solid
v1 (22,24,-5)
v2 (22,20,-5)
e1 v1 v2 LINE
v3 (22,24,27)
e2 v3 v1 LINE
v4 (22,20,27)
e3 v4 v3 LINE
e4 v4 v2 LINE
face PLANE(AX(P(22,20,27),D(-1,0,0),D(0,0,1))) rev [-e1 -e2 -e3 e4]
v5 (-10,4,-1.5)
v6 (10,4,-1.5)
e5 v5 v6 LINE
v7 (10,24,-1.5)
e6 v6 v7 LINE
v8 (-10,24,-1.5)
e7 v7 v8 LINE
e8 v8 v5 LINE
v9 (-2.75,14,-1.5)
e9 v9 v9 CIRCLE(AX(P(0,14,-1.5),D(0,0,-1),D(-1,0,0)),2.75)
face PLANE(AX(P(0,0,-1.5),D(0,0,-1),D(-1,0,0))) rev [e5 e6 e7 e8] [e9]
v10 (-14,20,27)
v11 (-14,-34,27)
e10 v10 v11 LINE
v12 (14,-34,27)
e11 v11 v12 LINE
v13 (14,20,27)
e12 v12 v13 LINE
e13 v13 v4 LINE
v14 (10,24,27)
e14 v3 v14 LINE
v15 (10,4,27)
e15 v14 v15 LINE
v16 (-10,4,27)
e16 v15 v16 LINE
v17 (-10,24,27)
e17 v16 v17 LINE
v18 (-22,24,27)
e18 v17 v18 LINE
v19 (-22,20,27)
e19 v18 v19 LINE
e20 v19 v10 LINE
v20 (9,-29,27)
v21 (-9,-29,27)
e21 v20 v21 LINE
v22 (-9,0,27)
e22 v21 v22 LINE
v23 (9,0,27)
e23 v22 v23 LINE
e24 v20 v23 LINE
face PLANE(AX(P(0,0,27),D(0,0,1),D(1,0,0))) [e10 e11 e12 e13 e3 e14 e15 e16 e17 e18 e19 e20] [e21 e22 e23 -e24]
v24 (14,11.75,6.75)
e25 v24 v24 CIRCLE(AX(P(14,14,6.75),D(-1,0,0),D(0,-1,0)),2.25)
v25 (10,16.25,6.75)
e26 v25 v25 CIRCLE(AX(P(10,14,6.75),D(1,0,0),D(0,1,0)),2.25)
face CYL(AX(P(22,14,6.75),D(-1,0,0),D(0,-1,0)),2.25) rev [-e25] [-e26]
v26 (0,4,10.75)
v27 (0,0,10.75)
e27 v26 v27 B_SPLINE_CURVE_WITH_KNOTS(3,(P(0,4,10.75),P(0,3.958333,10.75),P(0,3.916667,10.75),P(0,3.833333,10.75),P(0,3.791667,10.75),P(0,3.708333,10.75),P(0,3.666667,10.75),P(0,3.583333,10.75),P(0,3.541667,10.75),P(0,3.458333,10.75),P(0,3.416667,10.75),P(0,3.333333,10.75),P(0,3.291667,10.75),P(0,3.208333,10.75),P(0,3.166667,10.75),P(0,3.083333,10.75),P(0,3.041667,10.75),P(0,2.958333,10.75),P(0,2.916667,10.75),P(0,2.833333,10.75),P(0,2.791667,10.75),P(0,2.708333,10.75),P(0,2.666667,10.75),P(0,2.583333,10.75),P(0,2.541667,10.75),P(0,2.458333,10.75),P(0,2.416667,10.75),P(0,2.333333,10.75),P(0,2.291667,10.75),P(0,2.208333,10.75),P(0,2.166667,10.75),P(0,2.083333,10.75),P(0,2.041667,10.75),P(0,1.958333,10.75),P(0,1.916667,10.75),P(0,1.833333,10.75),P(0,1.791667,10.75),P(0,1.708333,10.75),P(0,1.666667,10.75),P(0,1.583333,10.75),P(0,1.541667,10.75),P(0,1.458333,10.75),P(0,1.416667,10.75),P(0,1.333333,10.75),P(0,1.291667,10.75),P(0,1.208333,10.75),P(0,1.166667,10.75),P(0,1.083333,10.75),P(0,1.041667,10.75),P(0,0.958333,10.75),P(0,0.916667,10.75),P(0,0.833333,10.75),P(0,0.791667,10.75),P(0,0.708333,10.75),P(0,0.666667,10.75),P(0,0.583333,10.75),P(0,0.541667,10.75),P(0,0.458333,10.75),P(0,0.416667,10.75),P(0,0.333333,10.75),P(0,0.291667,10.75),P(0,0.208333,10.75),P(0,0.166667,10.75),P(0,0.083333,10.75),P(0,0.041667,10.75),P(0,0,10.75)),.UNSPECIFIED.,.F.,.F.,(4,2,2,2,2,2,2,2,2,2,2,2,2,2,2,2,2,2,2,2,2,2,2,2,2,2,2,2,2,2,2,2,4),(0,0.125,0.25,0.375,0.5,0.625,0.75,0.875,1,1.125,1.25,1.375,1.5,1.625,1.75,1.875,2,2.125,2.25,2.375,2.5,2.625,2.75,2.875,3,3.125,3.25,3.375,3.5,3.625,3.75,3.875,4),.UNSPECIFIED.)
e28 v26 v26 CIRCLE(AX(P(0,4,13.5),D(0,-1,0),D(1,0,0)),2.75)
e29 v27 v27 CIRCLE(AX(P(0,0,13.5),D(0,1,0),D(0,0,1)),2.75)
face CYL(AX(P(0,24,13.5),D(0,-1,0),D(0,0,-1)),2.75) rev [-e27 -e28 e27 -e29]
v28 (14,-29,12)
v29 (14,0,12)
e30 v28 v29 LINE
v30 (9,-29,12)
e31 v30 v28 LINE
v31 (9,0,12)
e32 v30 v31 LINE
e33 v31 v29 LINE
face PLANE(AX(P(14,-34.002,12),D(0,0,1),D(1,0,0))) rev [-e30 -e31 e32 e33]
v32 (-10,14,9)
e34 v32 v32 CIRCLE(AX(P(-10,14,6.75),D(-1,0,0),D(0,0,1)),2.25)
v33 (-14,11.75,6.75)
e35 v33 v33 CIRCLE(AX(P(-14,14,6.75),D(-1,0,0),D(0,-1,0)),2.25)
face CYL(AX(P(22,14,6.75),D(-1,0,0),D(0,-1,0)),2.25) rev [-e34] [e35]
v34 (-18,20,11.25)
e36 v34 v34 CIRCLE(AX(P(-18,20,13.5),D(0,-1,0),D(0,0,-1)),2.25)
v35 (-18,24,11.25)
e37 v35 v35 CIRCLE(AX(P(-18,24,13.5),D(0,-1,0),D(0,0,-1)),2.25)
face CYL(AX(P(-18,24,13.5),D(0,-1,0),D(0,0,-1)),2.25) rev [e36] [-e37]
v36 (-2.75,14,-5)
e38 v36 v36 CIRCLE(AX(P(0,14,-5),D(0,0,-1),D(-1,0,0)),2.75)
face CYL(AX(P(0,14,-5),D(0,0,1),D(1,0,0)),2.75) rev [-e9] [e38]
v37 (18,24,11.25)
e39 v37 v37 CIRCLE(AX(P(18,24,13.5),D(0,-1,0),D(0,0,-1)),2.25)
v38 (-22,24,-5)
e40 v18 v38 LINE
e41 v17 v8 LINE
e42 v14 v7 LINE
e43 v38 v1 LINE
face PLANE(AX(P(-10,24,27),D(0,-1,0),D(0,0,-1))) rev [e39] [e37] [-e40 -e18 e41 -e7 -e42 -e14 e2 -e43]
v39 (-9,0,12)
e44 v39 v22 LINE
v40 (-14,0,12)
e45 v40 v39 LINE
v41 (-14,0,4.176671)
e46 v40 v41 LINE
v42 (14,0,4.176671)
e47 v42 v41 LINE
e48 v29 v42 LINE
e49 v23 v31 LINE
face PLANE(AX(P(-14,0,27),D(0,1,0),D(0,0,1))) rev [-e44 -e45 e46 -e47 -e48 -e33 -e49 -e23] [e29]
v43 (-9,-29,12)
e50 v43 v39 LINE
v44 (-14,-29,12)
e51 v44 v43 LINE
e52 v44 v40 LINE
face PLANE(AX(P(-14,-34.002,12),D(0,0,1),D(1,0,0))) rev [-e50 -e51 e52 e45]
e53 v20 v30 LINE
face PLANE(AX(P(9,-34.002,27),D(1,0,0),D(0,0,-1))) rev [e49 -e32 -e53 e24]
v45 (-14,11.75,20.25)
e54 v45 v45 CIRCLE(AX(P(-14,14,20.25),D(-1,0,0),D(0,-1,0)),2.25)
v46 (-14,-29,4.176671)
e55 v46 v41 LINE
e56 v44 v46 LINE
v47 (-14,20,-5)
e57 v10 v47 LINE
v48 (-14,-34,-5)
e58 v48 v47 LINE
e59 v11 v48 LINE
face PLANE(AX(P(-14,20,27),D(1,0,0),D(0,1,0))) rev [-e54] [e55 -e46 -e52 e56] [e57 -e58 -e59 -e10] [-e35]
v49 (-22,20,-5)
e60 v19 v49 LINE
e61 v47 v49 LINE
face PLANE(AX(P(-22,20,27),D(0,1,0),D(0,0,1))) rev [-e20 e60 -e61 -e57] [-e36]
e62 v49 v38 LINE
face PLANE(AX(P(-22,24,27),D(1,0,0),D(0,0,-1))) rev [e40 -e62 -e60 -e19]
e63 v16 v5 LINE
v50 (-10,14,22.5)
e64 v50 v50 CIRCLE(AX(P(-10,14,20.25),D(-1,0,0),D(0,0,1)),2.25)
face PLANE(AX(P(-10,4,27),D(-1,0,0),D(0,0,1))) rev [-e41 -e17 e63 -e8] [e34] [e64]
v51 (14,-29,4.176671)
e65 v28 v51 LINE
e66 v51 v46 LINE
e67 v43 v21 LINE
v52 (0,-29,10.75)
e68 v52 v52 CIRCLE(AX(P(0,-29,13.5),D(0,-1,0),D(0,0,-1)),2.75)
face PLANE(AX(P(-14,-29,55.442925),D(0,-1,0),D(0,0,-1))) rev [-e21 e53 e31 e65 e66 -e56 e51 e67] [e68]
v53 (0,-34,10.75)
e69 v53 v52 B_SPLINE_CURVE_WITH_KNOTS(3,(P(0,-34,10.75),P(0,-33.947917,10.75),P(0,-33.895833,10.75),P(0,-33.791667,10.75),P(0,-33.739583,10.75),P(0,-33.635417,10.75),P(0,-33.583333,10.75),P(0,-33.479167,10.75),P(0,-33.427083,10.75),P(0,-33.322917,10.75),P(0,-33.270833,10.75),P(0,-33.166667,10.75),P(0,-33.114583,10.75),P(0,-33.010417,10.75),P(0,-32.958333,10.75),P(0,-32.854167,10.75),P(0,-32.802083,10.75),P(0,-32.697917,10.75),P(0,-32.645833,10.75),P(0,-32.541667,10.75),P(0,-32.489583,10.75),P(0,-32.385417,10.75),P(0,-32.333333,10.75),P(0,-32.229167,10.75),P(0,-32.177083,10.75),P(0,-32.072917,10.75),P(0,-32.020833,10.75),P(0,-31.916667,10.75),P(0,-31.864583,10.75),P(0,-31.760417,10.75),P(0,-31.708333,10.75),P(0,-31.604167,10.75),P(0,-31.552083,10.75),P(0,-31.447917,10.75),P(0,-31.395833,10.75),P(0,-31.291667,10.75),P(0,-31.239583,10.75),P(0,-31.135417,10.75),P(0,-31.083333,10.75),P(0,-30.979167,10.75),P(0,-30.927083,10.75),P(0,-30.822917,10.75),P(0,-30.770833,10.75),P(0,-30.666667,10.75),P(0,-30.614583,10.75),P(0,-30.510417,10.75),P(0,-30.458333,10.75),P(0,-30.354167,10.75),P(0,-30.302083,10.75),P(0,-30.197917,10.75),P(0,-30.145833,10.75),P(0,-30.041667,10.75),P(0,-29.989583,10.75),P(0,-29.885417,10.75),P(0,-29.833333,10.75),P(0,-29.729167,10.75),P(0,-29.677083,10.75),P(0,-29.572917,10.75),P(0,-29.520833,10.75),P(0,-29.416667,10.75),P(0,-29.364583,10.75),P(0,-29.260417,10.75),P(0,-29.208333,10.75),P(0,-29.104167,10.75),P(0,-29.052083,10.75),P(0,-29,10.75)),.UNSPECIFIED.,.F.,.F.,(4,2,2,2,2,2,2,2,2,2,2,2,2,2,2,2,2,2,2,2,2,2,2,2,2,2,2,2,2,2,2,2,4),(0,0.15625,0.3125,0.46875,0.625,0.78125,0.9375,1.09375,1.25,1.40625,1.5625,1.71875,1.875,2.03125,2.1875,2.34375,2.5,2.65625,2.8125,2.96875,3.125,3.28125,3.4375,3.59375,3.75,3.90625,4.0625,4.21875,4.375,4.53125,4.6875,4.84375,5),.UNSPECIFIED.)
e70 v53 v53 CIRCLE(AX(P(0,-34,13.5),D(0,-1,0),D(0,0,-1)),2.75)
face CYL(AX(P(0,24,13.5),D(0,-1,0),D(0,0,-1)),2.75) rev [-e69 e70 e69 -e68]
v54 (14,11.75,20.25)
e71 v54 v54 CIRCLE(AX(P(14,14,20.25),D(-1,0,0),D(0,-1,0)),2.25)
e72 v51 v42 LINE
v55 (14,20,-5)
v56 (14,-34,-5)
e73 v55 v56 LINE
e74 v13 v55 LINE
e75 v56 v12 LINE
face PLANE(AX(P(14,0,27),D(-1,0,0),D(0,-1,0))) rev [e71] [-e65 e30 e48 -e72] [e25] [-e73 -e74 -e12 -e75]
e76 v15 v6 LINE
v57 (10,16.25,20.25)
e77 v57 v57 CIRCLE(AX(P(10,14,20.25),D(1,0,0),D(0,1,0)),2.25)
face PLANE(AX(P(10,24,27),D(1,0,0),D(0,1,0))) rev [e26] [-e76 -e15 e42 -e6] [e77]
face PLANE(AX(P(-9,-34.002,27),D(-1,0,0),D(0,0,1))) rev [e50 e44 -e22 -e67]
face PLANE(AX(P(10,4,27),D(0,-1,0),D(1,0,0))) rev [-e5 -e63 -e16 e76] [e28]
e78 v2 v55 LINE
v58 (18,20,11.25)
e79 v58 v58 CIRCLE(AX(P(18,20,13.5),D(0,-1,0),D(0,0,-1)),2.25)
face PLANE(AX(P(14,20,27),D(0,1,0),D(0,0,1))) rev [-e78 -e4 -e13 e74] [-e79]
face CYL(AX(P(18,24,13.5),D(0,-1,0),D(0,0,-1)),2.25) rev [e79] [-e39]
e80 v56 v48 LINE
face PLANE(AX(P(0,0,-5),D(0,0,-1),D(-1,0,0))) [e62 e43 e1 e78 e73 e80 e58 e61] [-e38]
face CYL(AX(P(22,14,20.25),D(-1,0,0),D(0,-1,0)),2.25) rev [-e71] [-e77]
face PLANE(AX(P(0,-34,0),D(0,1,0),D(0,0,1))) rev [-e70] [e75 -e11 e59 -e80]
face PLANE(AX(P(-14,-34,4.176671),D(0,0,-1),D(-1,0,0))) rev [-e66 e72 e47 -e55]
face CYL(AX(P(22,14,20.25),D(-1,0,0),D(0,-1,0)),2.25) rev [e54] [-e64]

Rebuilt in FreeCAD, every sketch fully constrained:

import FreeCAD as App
import Part
import Sketcher
from FreeCAD import Vector


def add_polygon(sketch, points):
    """Adds a closed chain of lines whose ends are joined by coincident constraints."""
    first, n = sketch.GeometryCount, len(points)
    for a, b in zip(points, points[1:] + points[:1]):
        sketch.addGeometry(Part.LineSegment(App.Vector(*a, 0), App.Vector(*b, 0)), False)
    for i in range(n):
        sketch.addConstraint(Sketcher.Constraint("Coincident", first + i, 2, first + (i + 1) % n, 1))

doc = App.newDocument("Part")
params = doc.addObject("Spreadsheet::Sheet", "Params")
for row, (alias, value) in enumerate([
    ("sketch1_width", "28 mm"),
    ("sketch1_width2", "8 mm"),
    ("sketch1_width3", "12 mm"),
    ("sketch1_height", "4 mm"),
    ("pad1_length", "27 mm"),
    ("sketch2_diameter", "4.5 mm"),
    ("sketch3_diameter", "4.5 mm"),
    ("sketch4_width", "28 mm"),
    ("pad2_length", "34 mm"),
    ("sketch5_width", "28 mm"),
    ("sketch5_height", "5 mm"),
    ("pad3_length", "22.823329 mm"),
    ("sketch6_diameter", "5.5 mm"),
    ("sketch7_width", "5 mm"),
    ("sketch7_height", "15 mm"),
    ("sketch8_width", "5 mm"),
    ("sketch8_height", "15 mm"),
    ("sketch9_diameter", "5.5 mm"),
    ("sketch9_width", "28 mm"),
    ("sketch9_width2", "8 mm"),
    ("sketch9_height", "54 mm"),
    ("sketch9_height2", "4 mm"),
    ("pad6_length", "5 mm"),
    ("sketch10_width", "20 mm"),
    ("pocket4_length", "1.5 mm"),
], start=1):
    params.set(f"A{row}", alias)
    params.set(f"B{row}", "=" + value)
    params.setAlias(f"B{row}", alias)

body = doc.addObject("PartDesign::Body", "Body")

# Sketch on XY plane
sketch1 = body.newObject("Sketcher::SketchObject", "Sketch")
sketch1.AttachmentSupport = (doc.getObject("XY_Plane"), [""])
sketch1.MapMode = "FlatFace"
add_polygon(sketch1, [(-14, 0), (14, 0), (14, 20), (22, 20), (22, 24), (10, 24), (10, 4), (-10, 4), (-10, 24), (-22, 24), (-22, 20), (-14, 20)])  # lines 0-11
sketch1.addConstraint([
    Sketcher.Constraint("Horizontal", 0),
    Sketcher.Constraint("Vertical", 1),
    Sketcher.Constraint("Horizontal", 2),
    Sketcher.Constraint("Vertical", 3),
    Sketcher.Constraint("Horizontal", 4),
    Sketcher.Constraint("Vertical", 5),
    Sketcher.Constraint("Horizontal", 6),
    Sketcher.Constraint("Vertical", 7),
    Sketcher.Constraint("Horizontal", 8),
    Sketcher.Constraint("Vertical", 9),
    Sketcher.Constraint("Horizontal", 10),
    Sketcher.Constraint("Vertical", 11),
    Sketcher.Constraint("Symmetric", 0, 2, 11, 2, -1, 1),
    Sketcher.Constraint("Symmetric", 4, 2, 7, 2, -2),
    Sketcher.Constraint("Symmetric", 2, 2, 9, 2, -2),
    Sketcher.Constraint("Equal", 6, 1),
    Sketcher.Constraint("Equal", 1, 5),
    Sketcher.Constraint("DistanceX", 0, 1, 0, 2, 28.0),
    Sketcher.Constraint("DistanceX", 2, 1, 2, 2, 8.0),
    Sketcher.Constraint("DistanceX", 4, 2, 4, 1, 12.0),
    Sketcher.Constraint("DistanceY", 3, 1, 3, 2, 4.0),
])
sketch1.setExpression("Constraints[29]", "Params.sketch1_width")
sketch1.setExpression("Constraints[30]", "Params.sketch1_width2")
sketch1.setExpression("Constraints[31]", "Params.sketch1_width3")
sketch1.setExpression("Constraints[32]", "Params.sketch1_height")
pad1 = body.newObject("PartDesign::Pad", "Pad")
pad1.Profile = sketch1
pad1.setExpression("Length", "Params.pad1_length")

# Sketch on YZ plane
sketch2 = body.newObject("Sketcher::SketchObject", "Sketch001")
sketch2.AttachmentSupport = (doc.getObject("YZ_Plane"), [""])
sketch2.MapMode = "FlatFace"
sketch2.AttachmentOffset = App.Placement(Vector(0, 0, -14), App.Rotation())
sketch2.addGeometry([
    Part.Circle(Vector(14, 6.8, 0), Vector(0, 0, 1), 2.2),
    Part.Circle(Vector(14, 20.2, 0), Vector(0, 0, 1), 2.2),
], False)
sketch2.addConstraint([
    Sketcher.Constraint("Equal", 0, 1),
    Sketcher.Constraint("Vertical", 0, 3, 1, 3),
    Sketcher.Constraint("Diameter", 0, 4.5),
    Sketcher.Constraint("DistanceX", -1, 1, 0, 3, 14.0),
    Sketcher.Constraint("DistanceY", 0, 3, 1, 3, 13.5),
    Sketcher.Constraint("DistanceY", -1, 1, 0, 3, 6.75),
])
sketch2.setExpression("Constraints[2]", "Params.sketch2_diameter")
pocket1 = body.newObject("PartDesign::Pocket", "Pocket")
pocket1.Profile = sketch2
pocket1.Type = "ThroughAll"
pocket1.Reversed = True

# Sketch on XZ plane
sketch3 = body.newObject("Sketcher::SketchObject", "Sketch002")
sketch3.AttachmentSupport = (doc.getObject("XZ_Plane"), [""])
sketch3.MapMode = "FlatFace"
sketch3.AttachmentOffset = App.Placement(Vector(0, 0, -20), App.Rotation())
sketch3.addGeometry([
    Part.Circle(Vector(-18, 13.5, 0), Vector(0, 0, 1), 2.2),
    Part.Circle(Vector(18, 13.5, 0), Vector(0, 0, 1), 2.2),
], False)
sketch3.addConstraint([
    Sketcher.Constraint("Equal", 0, 1),
    Sketcher.Constraint("Symmetric", 0, 3, 1, 3, -2),
    Sketcher.Constraint("Diameter", 0, 4.5),
    Sketcher.Constraint("DistanceX", 0, 3, -1, 1, 18.0),
    Sketcher.Constraint("DistanceY", -1, 1, 0, 3, 13.5),
])
sketch3.setExpression("Constraints[2]", "Params.sketch3_diameter")
pocket2 = body.newObject("PartDesign::Pocket", "Pocket001")
pocket2.Profile = sketch3
pocket2.Type = "ThroughAll"

# Sketch on XZ plane
sketch4 = body.newObject("Sketcher::SketchObject", "Sketch003")
sketch4.AttachmentSupport = (doc.getObject("XZ_Plane"), [""])
sketch4.MapMode = "FlatFace"
add_polygon(sketch4, [(-14, 4.2), (-14, 0), (14, 0), (14, 4.2)])  # lines 0-3
sketch4.addConstraint([
    Sketcher.Constraint("Vertical", 0),
    Sketcher.Constraint("Horizontal", 1),
    Sketcher.Constraint("Vertical", 2),
    Sketcher.Constraint("Horizontal", 3),
    Sketcher.Constraint("Symmetric", 0, 2, 1, 2, -1, 1),
    Sketcher.Constraint("DistanceX", 1, 1, 1, 2, 28.0),
    Sketcher.Constraint("DistanceY", 0, 2, 0, 1, 4.176671),
])
sketch4.setExpression("Constraints[9]", "Params.sketch4_width")
pad2 = body.newObject("PartDesign::Pad", "Pad001")
pad2.Profile = sketch4
pad2.setExpression("Length", "Params.pad2_length")

# Sketch on XY plane
sketch5 = body.newObject("Sketcher::SketchObject", "Sketch004")
sketch5.AttachmentSupport = (doc.getObject("XY_Plane"), [""])
sketch5.MapMode = "FlatFace"
sketch5.AttachmentOffset = App.Placement(Vector(0, 0, 4.176671), App.Rotation())
add_polygon(sketch5, [(-14, -29), (-14, -34), (14, -34), (14, -29)])  # lines 0-3
sketch5.addConstraint([
    Sketcher.Constraint("Vertical", 0),
    Sketcher.Constraint("Horizontal", 1),
    Sketcher.Constraint("Vertical", 2),
    Sketcher.Constraint("Horizontal", 3),
    Sketcher.Constraint("DistanceX", 1, 1, 1, 2, 28.0),
    Sketcher.Constraint("DistanceY", 0, 2, 0, 1, 5.0),
    Sketcher.Constraint("DistanceX", 0, 2, -1, 1, 14.0),
    Sketcher.Constraint("DistanceY", 0, 2, -1, 1, 34.0),
])
sketch5.setExpression("Constraints[8]", "Params.sketch5_width")
sketch5.setExpression("Constraints[9]", "Params.sketch5_height")
pad3 = body.newObject("PartDesign::Pad", "Pad002")
pad3.Profile = sketch5
pad3.setExpression("Length", "Params.pad3_length")

# Sketch on XZ plane
sketch6 = body.newObject("Sketcher::SketchObject", "Sketch005")
sketch6.AttachmentSupport = (doc.getObject("XZ_Plane"), [""])
sketch6.MapMode = "FlatFace"
sketch6.AttachmentOffset = App.Placement(Vector(0, 0, 34), App.Rotation())
sketch6.addGeometry(Part.Circle(Vector(0, 13.5, 0), Vector(0, 0, 1), 2.8), False)
sketch6.addConstraint([
    Sketcher.Constraint("PointOnObject", 0, 3, -2),
    Sketcher.Constraint("Diameter", 0, 5.5),
    Sketcher.Constraint("DistanceY", -1, 1, 0, 3, 13.5),
])
sketch6.setExpression("Constraints[1]", "Params.sketch6_diameter")
pocket3 = body.newObject("PartDesign::Pocket", "Pocket002")
pocket3.Profile = sketch6
pocket3.Type = "ThroughAll"

# Sketch on XZ plane
sketch7 = body.newObject("Sketcher::SketchObject", "Sketch006")
sketch7.AttachmentSupport = (doc.getObject("XZ_Plane"), [""])
sketch7.MapMode = "FlatFace"
add_polygon(sketch7, [(9, 27), (9, 12), (14, 12), (14, 27)])  # lines 0-3
sketch7.addConstraint([
    Sketcher.Constraint("Vertical", 0),
    Sketcher.Constraint("Horizontal", 1),
    Sketcher.Constraint("Vertical", 2),
    Sketcher.Constraint("Horizontal", 3),
    Sketcher.Constraint("DistanceX", 1, 1, 1, 2, 5.0),
    Sketcher.Constraint("DistanceY", 0, 2, 0, 1, 15.0),
    Sketcher.Constraint("DistanceX", -1, 1, 0, 2, 9.0),
    Sketcher.Constraint("DistanceY", -1, 1, 0, 2, 12.0),
])
sketch7.setExpression("Constraints[8]", "Params.sketch7_width")
sketch7.setExpression("Constraints[9]", "Params.sketch7_height")
pad4 = body.newObject("PartDesign::Pad", "Pad003")
pad4.Profile = sketch7
pad4.Type = "UpToFirst"

# Sketch on XZ plane
sketch8 = body.newObject("Sketcher::SketchObject", "Sketch007")
sketch8.AttachmentSupport = (doc.getObject("XZ_Plane"), [""])
sketch8.MapMode = "FlatFace"
add_polygon(sketch8, [(-14, 27), (-14, 12), (-9, 12), (-9, 27)])  # lines 0-3
sketch8.addConstraint([
    Sketcher.Constraint("Vertical", 0),
    Sketcher.Constraint("Horizontal", 1),
    Sketcher.Constraint("Vertical", 2),
    Sketcher.Constraint("Horizontal", 3),
    Sketcher.Constraint("DistanceX", 1, 1, 1, 2, 5.0),
    Sketcher.Constraint("DistanceY", 0, 2, 0, 1, 15.0),
    Sketcher.Constraint("DistanceX", 0, 2, -1, 1, 14.0),
    Sketcher.Constraint("DistanceY", -1, 1, 0, 2, 12.0),
])
sketch8.setExpression("Constraints[8]", "Params.sketch8_width")
sketch8.setExpression("Constraints[9]", "Params.sketch8_height")
pad5 = body.newObject("PartDesign::Pad", "Pad004")
pad5.Profile = sketch8
pad5.Type = "UpToFirst"

# Sketch on XY plane
sketch9 = body.newObject("Sketcher::SketchObject", "Sketch008")
sketch9.AttachmentSupport = (doc.getObject("XY_Plane"), [""])
sketch9.MapMode = "FlatFace"
add_polygon(sketch9, [(14, -34), (-14, -34), (-14, 20), (-22, 20), (-22, 24), (22, 24), (22, 20), (14, 20)])  # lines 0-7
sketch9.addGeometry(Part.Circle(Vector(0, 14, 0), Vector(0, 0, 1), 2.8), False)  # 8
sketch9.addConstraint([
    Sketcher.Constraint("Horizontal", 0),
    Sketcher.Constraint("Vertical", 1),
    Sketcher.Constraint("Horizontal", 2),
    Sketcher.Constraint("Vertical", 3),
    Sketcher.Constraint("Horizontal", 4),
    Sketcher.Constraint("Vertical", 5),
    Sketcher.Constraint("Horizontal", 6),
    Sketcher.Constraint("Vertical", 7),
    Sketcher.Constraint("Symmetric", 2, 2, 5, 2, -2),
    Sketcher.Constraint("PointOnObject", 8, 3, -2),
    Sketcher.Constraint("Equal", 2, 6),
    Sketcher.Constraint("Diameter", 8, 5.5),
    Sketcher.Constraint("DistanceX", 0, 2, 0, 1, 28.0),
    Sketcher.Constraint("DistanceX", 2, 2, 2, 1, 8.0),
    Sketcher.Constraint("DistanceY", 1, 1, 1, 2, 54.0),
    Sketcher.Constraint("DistanceY", 3, 1, 3, 2, 4.0),
    Sketcher.Constraint("DistanceY", -1, 1, 8, 3, 14.0),
    Sketcher.Constraint("DistanceY", 0, 2, -1, 1, 34.0),
])
sketch9.setExpression("Constraints[19]", "Params.sketch9_diameter")
sketch9.setExpression("Constraints[20]", "Params.sketch9_width")
sketch9.setExpression("Constraints[21]", "Params.sketch9_width2")
sketch9.setExpression("Constraints[22]", "Params.sketch9_height")
sketch9.setExpression("Constraints[23]", "Params.sketch9_height2")
pad6 = body.newObject("PartDesign::Pad", "Pad005")
pad6.Profile = sketch9
pad6.setExpression("Length", "Params.pad6_length")
pad6.Reversed = True

# Sketch on XY plane
sketch10 = body.newObject("Sketcher::SketchObject", "Sketch009")
sketch10.AttachmentSupport = (doc.getObject("XY_Plane"), [""])
sketch10.MapMode = "FlatFace"
add_polygon(sketch10, [(-10, 24), (-10, 4), (10, 4), (10, 24)])  # lines 0-3
sketch10.addConstraint([
    Sketcher.Constraint("Vertical", 0),
    Sketcher.Constraint("Horizontal", 1),
    Sketcher.Constraint("Vertical", 2),
    Sketcher.Constraint("Horizontal", 3),
    Sketcher.Constraint("Equal", 3, 0),
    Sketcher.Constraint("DistanceX", 1, 1, 1, 2, 20.0),
    Sketcher.Constraint("DistanceX", 0, 2, -1, 1, 10.0),
    Sketcher.Constraint("DistanceY", -1, 1, 0, 2, 4.0),
])
sketch10.setExpression("Constraints[9]", "Params.sketch10_width")
pocket4 = body.newObject("PartDesign::Pocket", "Pocket003")
pocket4.Profile = sketch10
pocket4.setExpression("Length", "Params.pocket4_length")

doc.recompute()
